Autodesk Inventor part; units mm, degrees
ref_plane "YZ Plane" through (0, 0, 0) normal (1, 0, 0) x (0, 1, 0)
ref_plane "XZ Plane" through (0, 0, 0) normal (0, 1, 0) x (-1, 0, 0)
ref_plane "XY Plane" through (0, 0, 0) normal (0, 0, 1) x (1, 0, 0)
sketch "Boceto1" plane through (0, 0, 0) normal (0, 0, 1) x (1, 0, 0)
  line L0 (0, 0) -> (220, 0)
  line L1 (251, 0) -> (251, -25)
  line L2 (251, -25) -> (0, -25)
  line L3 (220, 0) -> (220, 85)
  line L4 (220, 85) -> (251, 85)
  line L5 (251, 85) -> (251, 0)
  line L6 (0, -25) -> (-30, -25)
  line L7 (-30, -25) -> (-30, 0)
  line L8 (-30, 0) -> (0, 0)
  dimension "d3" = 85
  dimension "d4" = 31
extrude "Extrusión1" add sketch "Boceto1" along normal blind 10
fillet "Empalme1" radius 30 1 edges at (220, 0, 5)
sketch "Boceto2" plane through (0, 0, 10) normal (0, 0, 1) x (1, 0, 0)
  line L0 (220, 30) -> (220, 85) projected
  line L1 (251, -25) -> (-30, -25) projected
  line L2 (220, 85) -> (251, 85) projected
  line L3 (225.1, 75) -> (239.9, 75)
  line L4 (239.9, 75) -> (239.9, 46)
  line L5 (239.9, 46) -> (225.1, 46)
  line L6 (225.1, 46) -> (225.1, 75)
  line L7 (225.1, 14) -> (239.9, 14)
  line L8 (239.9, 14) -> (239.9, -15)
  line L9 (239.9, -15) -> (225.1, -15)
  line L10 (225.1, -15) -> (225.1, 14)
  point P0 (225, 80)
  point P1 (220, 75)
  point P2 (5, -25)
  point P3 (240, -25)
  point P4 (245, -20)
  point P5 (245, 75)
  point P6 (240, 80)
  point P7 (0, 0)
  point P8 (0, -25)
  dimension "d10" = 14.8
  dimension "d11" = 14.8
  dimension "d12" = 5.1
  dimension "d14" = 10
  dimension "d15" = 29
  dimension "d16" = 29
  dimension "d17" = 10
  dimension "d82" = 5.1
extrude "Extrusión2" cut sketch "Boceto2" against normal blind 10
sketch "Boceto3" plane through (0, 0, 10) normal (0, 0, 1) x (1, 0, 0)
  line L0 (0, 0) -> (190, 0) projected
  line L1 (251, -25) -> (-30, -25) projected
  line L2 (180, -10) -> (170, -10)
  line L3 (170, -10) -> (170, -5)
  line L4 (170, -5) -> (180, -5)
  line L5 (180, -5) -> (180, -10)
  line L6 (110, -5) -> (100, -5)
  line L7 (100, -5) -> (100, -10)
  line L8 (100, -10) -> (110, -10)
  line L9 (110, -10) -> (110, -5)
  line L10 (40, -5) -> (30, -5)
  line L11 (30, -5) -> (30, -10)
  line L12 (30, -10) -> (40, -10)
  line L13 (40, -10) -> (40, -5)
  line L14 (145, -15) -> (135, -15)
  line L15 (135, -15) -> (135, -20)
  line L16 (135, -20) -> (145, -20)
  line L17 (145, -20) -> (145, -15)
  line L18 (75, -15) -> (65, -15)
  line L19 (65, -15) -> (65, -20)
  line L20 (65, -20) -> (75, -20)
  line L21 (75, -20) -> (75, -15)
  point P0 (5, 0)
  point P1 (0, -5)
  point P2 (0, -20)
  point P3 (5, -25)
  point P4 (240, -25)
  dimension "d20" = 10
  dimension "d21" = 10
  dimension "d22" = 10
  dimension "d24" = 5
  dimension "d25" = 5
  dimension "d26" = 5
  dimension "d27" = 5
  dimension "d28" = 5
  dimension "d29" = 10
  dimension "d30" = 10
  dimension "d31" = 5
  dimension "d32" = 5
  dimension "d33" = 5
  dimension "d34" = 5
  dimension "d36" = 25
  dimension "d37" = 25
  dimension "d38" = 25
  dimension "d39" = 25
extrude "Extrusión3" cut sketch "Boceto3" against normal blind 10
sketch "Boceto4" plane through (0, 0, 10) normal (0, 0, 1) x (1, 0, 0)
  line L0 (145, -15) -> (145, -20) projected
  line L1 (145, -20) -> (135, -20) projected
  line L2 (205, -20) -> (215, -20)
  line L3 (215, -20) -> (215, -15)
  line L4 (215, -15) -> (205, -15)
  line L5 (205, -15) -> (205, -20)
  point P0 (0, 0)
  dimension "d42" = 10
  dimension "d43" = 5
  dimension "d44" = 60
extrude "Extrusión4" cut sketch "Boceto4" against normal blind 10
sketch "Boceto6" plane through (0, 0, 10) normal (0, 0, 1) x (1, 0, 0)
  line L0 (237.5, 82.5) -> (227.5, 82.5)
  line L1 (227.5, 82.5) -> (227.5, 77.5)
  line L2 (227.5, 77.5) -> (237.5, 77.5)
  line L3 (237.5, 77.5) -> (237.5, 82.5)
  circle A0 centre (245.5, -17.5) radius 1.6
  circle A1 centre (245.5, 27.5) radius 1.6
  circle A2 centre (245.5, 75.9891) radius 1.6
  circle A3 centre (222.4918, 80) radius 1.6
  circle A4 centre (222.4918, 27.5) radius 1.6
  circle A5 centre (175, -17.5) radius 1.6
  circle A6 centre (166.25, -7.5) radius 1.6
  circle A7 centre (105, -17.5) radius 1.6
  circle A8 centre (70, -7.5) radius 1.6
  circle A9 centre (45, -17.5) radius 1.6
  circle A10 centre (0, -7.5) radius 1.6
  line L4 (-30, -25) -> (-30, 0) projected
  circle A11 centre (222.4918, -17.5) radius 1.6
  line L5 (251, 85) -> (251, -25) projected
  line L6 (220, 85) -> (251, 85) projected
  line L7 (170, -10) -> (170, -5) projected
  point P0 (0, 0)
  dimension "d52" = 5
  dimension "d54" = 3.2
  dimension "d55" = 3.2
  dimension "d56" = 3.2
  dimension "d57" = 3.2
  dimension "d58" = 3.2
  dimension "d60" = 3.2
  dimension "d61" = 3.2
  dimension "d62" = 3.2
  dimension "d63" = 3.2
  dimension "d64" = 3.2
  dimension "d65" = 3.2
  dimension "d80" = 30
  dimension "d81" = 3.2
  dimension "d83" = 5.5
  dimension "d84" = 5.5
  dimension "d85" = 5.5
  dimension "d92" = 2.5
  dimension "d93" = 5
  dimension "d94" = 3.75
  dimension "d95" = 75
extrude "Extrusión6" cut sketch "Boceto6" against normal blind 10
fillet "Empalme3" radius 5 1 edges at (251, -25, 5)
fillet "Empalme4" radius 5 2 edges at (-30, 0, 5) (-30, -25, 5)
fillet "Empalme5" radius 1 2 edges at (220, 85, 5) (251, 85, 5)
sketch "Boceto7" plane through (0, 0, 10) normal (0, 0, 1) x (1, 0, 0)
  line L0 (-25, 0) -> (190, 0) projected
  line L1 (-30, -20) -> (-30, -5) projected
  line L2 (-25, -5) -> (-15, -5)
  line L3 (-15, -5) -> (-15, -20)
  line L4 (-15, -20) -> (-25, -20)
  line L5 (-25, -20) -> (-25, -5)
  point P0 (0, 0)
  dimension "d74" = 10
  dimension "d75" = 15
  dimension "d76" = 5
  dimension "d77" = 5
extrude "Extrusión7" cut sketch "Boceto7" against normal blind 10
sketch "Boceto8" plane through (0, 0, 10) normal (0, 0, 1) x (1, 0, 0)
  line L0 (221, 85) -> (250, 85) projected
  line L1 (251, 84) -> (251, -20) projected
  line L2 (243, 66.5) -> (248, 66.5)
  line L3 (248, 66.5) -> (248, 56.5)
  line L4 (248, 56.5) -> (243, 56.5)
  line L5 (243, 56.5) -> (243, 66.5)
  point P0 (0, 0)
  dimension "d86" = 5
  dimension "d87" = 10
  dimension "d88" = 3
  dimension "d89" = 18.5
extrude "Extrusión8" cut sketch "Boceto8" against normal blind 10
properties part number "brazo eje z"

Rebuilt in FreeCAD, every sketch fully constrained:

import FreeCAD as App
import Part
import Sketcher
from FreeCAD import Vector
Q = App.Units.Quantity


def edges_at(feature, points):
    """Names of the edges that pass closest to the given points."""
    edges = feature.Shape.Edges
    near = lambda p: min(range(len(edges)), key=lambda i: edges[i].distToShape(Part.Vertex(*p))[0])
    return sorted({f"Edge{near(p) + 1}" for p in points})

doc = App.newDocument("Part")
body = doc.addObject("PartDesign::Body", "Body")

# Sketch on XY plane
sketch1 = body.newObject("Sketcher::SketchObject", "Sketch")
sketch1.AttachmentSupport = (doc.getObject("XY_Plane"), [""])
sketch1.MapMode = "FlatFace"
sketch1.addGeometry([
    Part.LineSegment(Vector(220, 0, 0), Vector(-30, 0, 0)),  # 0
    Part.LineSegment(Vector(-30, 0, 0), Vector(-30, -25, 0)),  # 1
    Part.LineSegment(Vector(-30, -25, 0), Vector(251, -25, 0)),  # 2
    Part.LineSegment(Vector(251, -25, 0), Vector(251, 85, 0)),  # 3
    Part.LineSegment(Vector(251, 85, 0), Vector(220, 85, 0)),  # 4
    Part.LineSegment(Vector(220, 85, 0), Vector(220, 0, 0)),  # 5
], False)
sketch1.addConstraint([
    Sketcher.Constraint("Coincident", 0, 2, 1, 1),
    Sketcher.Constraint("Coincident", 1, 2, 2, 1),
    Sketcher.Constraint("Coincident", 2, 2, 3, 1),
    Sketcher.Constraint("Coincident", 3, 2, 4, 1),
    Sketcher.Constraint("Coincident", 4, 2, 5, 1),
    Sketcher.Constraint("Coincident", 5, 2, 0, 1),
    Sketcher.Constraint("Horizontal", 0),
    Sketcher.Constraint("Vertical", 1),
    Sketcher.Constraint("Horizontal", 2),
    Sketcher.Constraint("Vertical", 3),
    Sketcher.Constraint("Horizontal", 4),
    Sketcher.Constraint("Vertical", 5),
    Sketcher.Constraint("PointOnObject", 0, 2, -1),
    Sketcher.Constraint("DistanceX", 4, 2, 4, 1, Q("31 mm")),
    Sketcher.Constraint("DistanceY", 5, 2, 5, 1, Q("85 mm")),
    Sketcher.Constraint("DistanceX", 0, 2, 0, 1, Q("250 mm")),
    Sketcher.Constraint("DistanceY", 1, 2, 1, 1, Q("25 mm")),
    Sketcher.Constraint("DistanceX", 0, 2, -1, 1, Q("30 mm")),
])
pad1 = body.newObject("PartDesign::Pad", "Pad")
pad1.Profile = sketch1
pad1.Length = 10
doc.recompute()

fillet = body.newObject("PartDesign::Fillet", "Fillet")
fillet.Base = (pad1, edges_at(pad1, [(220, 0, 5)]))
fillet.Radius = 30

# Sketch on XY plane
sketch2 = body.newObject("Sketcher::SketchObject", "Sketch001")
sketch2.AttachmentSupport = (doc.getObject("XY_Plane"), [""])
sketch2.MapMode = "FlatFace"
sketch2.AttachmentOffset = App.Placement(Vector(0, 0, 10), App.Rotation())
sketch2.addGeometry([
    Part.LineSegment(Vector(240, 75, 0), Vector(225, 75, 0)),  # 0
    Part.LineSegment(Vector(225, 75, 0), Vector(225, 46, 0)),  # 1
    Part.LineSegment(Vector(225, 46, 0), Vector(240, 46, 0)),  # 2
    Part.LineSegment(Vector(240, 46, 0), Vector(240, 75, 0)),  # 3
    Part.LineSegment(Vector(240, 14, 0), Vector(225, 14, 0)),  # 4
    Part.LineSegment(Vector(225, 14, 0), Vector(225, -15, 0)),  # 5
    Part.LineSegment(Vector(225, -15, 0), Vector(240, -15, 0)),  # 6
    Part.LineSegment(Vector(240, -15, 0), Vector(240, 14, 0)),  # 7
], False)
sketch2.addConstraint([
    Sketcher.Constraint("Coincident", 0, 2, 1, 1),
    Sketcher.Constraint("Coincident", 1, 2, 2, 1),
    Sketcher.Constraint("Coincident", 2, 2, 3, 1),
    Sketcher.Constraint("Coincident", 3, 2, 0, 1),
    Sketcher.Constraint("Coincident", 4, 2, 5, 1),
    Sketcher.Constraint("Coincident", 5, 2, 6, 1),
    Sketcher.Constraint("Coincident", 6, 2, 7, 1),
    Sketcher.Constraint("Coincident", 7, 2, 4, 1),
    Sketcher.Constraint("Horizontal", 0),
    Sketcher.Constraint("Vertical", 1),
    Sketcher.Constraint("Horizontal", 2),
    Sketcher.Constraint("Vertical", 3),
    Sketcher.Constraint("Horizontal", 4),
    Sketcher.Constraint("Vertical", 5),
    Sketcher.Constraint("Horizontal", 6),
    Sketcher.Constraint("Vertical", 7),
    Sketcher.Constraint("Vertical", 1, 2, 4, 2),
    Sketcher.Constraint("Vertical", 3, 2, 6, 2),
    Sketcher.Constraint("Equal", 3, 5),
    Sketcher.Constraint("DistanceY", 1, 2, 1, 1, Q("29 mm")),
    Sketcher.Constraint("DistanceX", 0, 2, 0, 1, Q("14.8 mm")),
    Sketcher.Constraint("DistanceY", -1, 1, 0, 2, Q("75 mm")),
    Sketcher.Constraint("DistanceY", -1, 1, 4, 2, Q("14 mm")),
    Sketcher.Constraint("DistanceX", -1, 1, 0, 2, Q("225.1 mm")),
])
pocket1 = body.newObject("PartDesign::Pocket", "Pocket")
pocket1.Profile = sketch2
pocket1.Length = 10

# Sketch on XY plane
sketch3 = body.newObject("Sketcher::SketchObject", "Sketch002")
sketch3.AttachmentSupport = (doc.getObject("XY_Plane"), [""])
sketch3.MapMode = "FlatFace"
sketch3.AttachmentOffset = App.Placement(Vector(0, 0, 10), App.Rotation())
sketch3.addGeometry([
    Part.LineSegment(Vector(170, -10, 0), Vector(180, -10, 0)),  # 0
    Part.LineSegment(Vector(180, -10, 0), Vector(180, -5, 0)),  # 1
    Part.LineSegment(Vector(180, -5, 0), Vector(170, -5, 0)),  # 2
    Part.LineSegment(Vector(170, -5, 0), Vector(170, -10, 0)),  # 3
    Part.LineSegment(Vector(110, -10, 0), Vector(110, -5, 0)),  # 4
    Part.LineSegment(Vector(110, -5, 0), Vector(100, -5, 0)),  # 5
    Part.LineSegment(Vector(100, -5, 0), Vector(100, -10, 0)),  # 6
    Part.LineSegment(Vector(100, -10, 0), Vector(110, -10, 0)),  # 7
    Part.LineSegment(Vector(40, -10, 0), Vector(40, -5, 0)),  # 8
    Part.LineSegment(Vector(40, -5, 0), Vector(30, -5, 0)),  # 9
    Part.LineSegment(Vector(30, -5, 0), Vector(30, -10, 0)),  # 10
    Part.LineSegment(Vector(30, -10, 0), Vector(40, -10, 0)),  # 11
    Part.LineSegment(Vector(145, -20, 0), Vector(145, -15, 0)),  # 12
    Part.LineSegment(Vector(145, -15, 0), Vector(135, -15, 0)),  # 13
    Part.LineSegment(Vector(135, -15, 0), Vector(135, -20, 0)),  # 14
    Part.LineSegment(Vector(135, -20, 0), Vector(145, -20, 0)),  # 15
    Part.LineSegment(Vector(75, -20, 0), Vector(75, -15, 0)),  # 16
    Part.LineSegment(Vector(75, -15, 0), Vector(65, -15, 0)),  # 17
    Part.LineSegment(Vector(65, -15, 0), Vector(65, -20, 0)),  # 18
    Part.LineSegment(Vector(65, -20, 0), Vector(75, -20, 0)),  # 19
], False)
sketch3.addConstraint([
    Sketcher.Constraint("Coincident", 0, 2, 1, 1),
    Sketcher.Constraint("Coincident", 1, 2, 2, 1),
    Sketcher.Constraint("Coincident", 2, 2, 3, 1),
    Sketcher.Constraint("Coincident", 3, 2, 0, 1),
    Sketcher.Constraint("Coincident", 4, 2, 5, 1),
    Sketcher.Constraint("Coincident", 5, 2, 6, 1),
    Sketcher.Constraint("Coincident", 6, 2, 7, 1),
    Sketcher.Constraint("Coincident", 7, 2, 4, 1),
    Sketcher.Constraint("Coincident", 8, 2, 9, 1),
    Sketcher.Constraint("Coincident", 9, 2, 10, 1),
    Sketcher.Constraint("Coincident", 10, 2, 11, 1),
    Sketcher.Constraint("Coincident", 11, 2, 8, 1),
    Sketcher.Constraint("Coincident", 12, 2, 13, 1),
    Sketcher.Constraint("Coincident", 13, 2, 14, 1),
    Sketcher.Constraint("Coincident", 14, 2, 15, 1),
    Sketcher.Constraint("Coincident", 15, 2, 12, 1),
    Sketcher.Constraint("Coincident", 16, 2, 17, 1),
    Sketcher.Constraint("Coincident", 17, 2, 18, 1),
    Sketcher.Constraint("Coincident", 18, 2, 19, 1),
    Sketcher.Constraint("Coincident", 19, 2, 16, 1),
    Sketcher.Constraint("Horizontal", 0),
    Sketcher.Constraint("Vertical", 1),
    Sketcher.Constraint("Horizontal", 2),
    Sketcher.Constraint("Vertical", 3),
    Sketcher.Constraint("Vertical", 4),
    Sketcher.Constraint("Horizontal", 5),
    Sketcher.Constraint("Vertical", 6),
    Sketcher.Constraint("Horizontal", 7),
    Sketcher.Constraint("Vertical", 8),
    Sketcher.Constraint("Horizontal", 9),
    Sketcher.Constraint("Vertical", 10),
    Sketcher.Constraint("Horizontal", 11),
    Sketcher.Constraint("Vertical", 12),
    Sketcher.Constraint("Horizontal", 13),
    Sketcher.Constraint("Vertical", 14),
    Sketcher.Constraint("Horizontal", 15),
    Sketcher.Constraint("Vertical", 16),
    Sketcher.Constraint("Horizontal", 17),
    Sketcher.Constraint("Vertical", 18),
    Sketcher.Constraint("Horizontal", 19),
    Sketcher.Constraint("Horizontal", 2, 2, 4, 2),
    Sketcher.Constraint("Horizontal", 3, 2, 6, 2),
    Sketcher.Constraint("Horizontal", 5, 2, 8, 2),
    Sketcher.Constraint("Horizontal", 7, 2, 10, 2),
    Sketcher.Constraint("Horizontal", 13, 2, 16, 2),
    Sketcher.Constraint("Horizontal", 15, 2, 18, 2),
    Sketcher.Constraint("Equal", 2, 5),
    Sketcher.Constraint("Equal", 7, 9),
    Sketcher.Constraint("Equal", 11, 13),
    Sketcher.Constraint("Equal", 15, 17),
    Sketcher.Constraint("Equal", 10, 12),
    Sketcher.Constraint("DistanceX", 0, 1, 0, 2, Q("10 mm")),
    Sketcher.Constraint("DistanceY", 1, 1, 1, 2, Q("5 mm")),
    Sketcher.Constraint("DistanceY", 0, 2, -1, 1, Q("10 mm")),
    Sketcher.Constraint("DistanceX", 12, 2, 3, 2, Q("25 mm")),
    Sketcher.Constraint("DistanceY", 12, 2, 3, 2, Q("5 mm")),
    Sketcher.Constraint("DistanceX", 7, 2, 13, 2, Q("25 mm")),
    Sketcher.Constraint("DistanceX", 16, 2, 6, 2, Q("25 mm")),
    Sketcher.Constraint("DistanceX", 11, 2, 17, 2, Q("25 mm")),
    Sketcher.Constraint("DistanceX", -1, 1, 0, 2, Q("180 mm")),
])
pocket2 = body.newObject("PartDesign::Pocket", "Pocket001")
pocket2.Profile = sketch3
pocket2.Length = 10

# Sketch on XY plane
sketch4 = body.newObject("Sketcher::SketchObject", "Sketch003")
sketch4.AttachmentSupport = (doc.getObject("XY_Plane"), [""])
sketch4.MapMode = "FlatFace"
sketch4.AttachmentOffset = App.Placement(Vector(0, 0, 10), App.Rotation())
sketch4.addGeometry([
    Part.LineSegment(Vector(205, -15, 0), Vector(205, -20, 0)),
    Part.LineSegment(Vector(205, -20, 0), Vector(215, -20, 0)),
    Part.LineSegment(Vector(215, -20, 0), Vector(215, -15, 0)),
    Part.LineSegment(Vector(215, -15, 0), Vector(205, -15, 0)),
], False)
sketch4.addConstraint([
    Sketcher.Constraint("Coincident", 0, 2, 1, 1),
    Sketcher.Constraint("Coincident", 1, 2, 2, 1),
    Sketcher.Constraint("Coincident", 2, 2, 3, 1),
    Sketcher.Constraint("Coincident", 3, 2, 0, 1),
    Sketcher.Constraint("Vertical", 0),
    Sketcher.Constraint("Horizontal", 1),
    Sketcher.Constraint("Vertical", 2),
    Sketcher.Constraint("Horizontal", 3),
    Sketcher.Constraint("DistanceX", 1, 1, 1, 2, Q("10 mm")),
    Sketcher.Constraint("DistanceY", 0, 2, 0, 1, Q("5 mm")),
    Sketcher.Constraint("DistanceX", -1, 1, 0, 2, Q("205 mm")),
    Sketcher.Constraint("DistanceY", 0, 2, -1, 1, Q("20 mm")),
])
pocket3 = body.newObject("PartDesign::Pocket", "Pocket002")
pocket3.Profile = sketch4
pocket3.Length = 10

# Sketch on XY plane
sketch5 = body.newObject("Sketcher::SketchObject", "Sketch004")
sketch5.AttachmentSupport = (doc.getObject("XY_Plane"), [""])
sketch5.MapMode = "FlatFace"
sketch5.AttachmentOffset = App.Placement(Vector(0, 0, 10), App.Rotation())
sketch5.addGeometry([
    Part.LineSegment(Vector(237.5, 77.5, 0), Vector(237.5, 82.5, 0)),  # 0
    Part.LineSegment(Vector(237.5, 82.5, 0), Vector(227.5, 82.5, 0)),  # 1
    Part.LineSegment(Vector(227.5, 82.5, 0), Vector(227.5, 77.5, 0)),  # 2
    Part.LineSegment(Vector(227.5, 77.5, 0), Vector(237.5, 77.5, 0)),  # 3
    Part.Circle(Vector(245.5, -17.5, 0), Vector(0, 0, 1), 1.6),  # 4
    Part.Circle(Vector(245.5, 27.5, 0), Vector(0, 0, 1), 1.6),  # 5
    Part.Circle(Vector(245.5, 76, 0), Vector(0, 0, 1), 1.6),  # 6
    Part.Circle(Vector(222.5, 80, 0), Vector(0, 0, 1), 1.6),  # 7
    Part.Circle(Vector(222.5, 27.5, 0), Vector(0, 0, 1), 1.6),  # 8
    Part.Circle(Vector(175, -17.5, 0), Vector(0, 0, 1), 1.6),  # 9
    Part.Circle(Vector(166.2, -7.5, 0), Vector(0, 0, 1), 1.6),  # 10
    Part.Circle(Vector(105, -17.5, 0), Vector(0, 0, 1), 1.6),  # 11
    Part.Circle(Vector(70, -7.5, 0), Vector(0, 0, 1), 1.6),  # 12
    Part.Circle(Vector(45, -17.5, 0), Vector(0, 0, 1), 1.6),  # 13
    Part.Circle(Vector(0, -7.5, 0), Vector(0, 0, 1), 1.6),  # 14
    Part.Circle(Vector(222.5, -17.5, 0), Vector(0, 0, 1), 1.6),  # 15
], False)
sketch5.addConstraint([
    Sketcher.Constraint("Coincident", 0, 2, 1, 1),
    Sketcher.Constraint("Coincident", 1, 2, 2, 1),
    Sketcher.Constraint("Coincident", 2, 2, 3, 1),
    Sketcher.Constraint("Coincident", 3, 2, 0, 1),
    Sketcher.Constraint("Vertical", 0),
    Sketcher.Constraint("Horizontal", 1),
    Sketcher.Constraint("Vertical", 2),
    Sketcher.Constraint("Horizontal", 3),
    Sketcher.Constraint("Equal", 4, 5),
    Sketcher.Constraint("Equal", 5, 6),
    Sketcher.Constraint("Equal", 6, 7),
    Sketcher.Constraint("Equal", 7, 8),
    Sketcher.Constraint("Equal", 8, 9),
    Sketcher.Constraint("Equal", 9, 10),
    Sketcher.Constraint("Equal", 10, 11),
    Sketcher.Constraint("Equal", 11, 12),
    Sketcher.Constraint("Equal", 12, 13),
    Sketcher.Constraint("Equal", 13, 14),
    Sketcher.Constraint("Equal", 14, 15),
    Sketcher.Constraint("PointOnObject", 14, 3, -2),
    Sketcher.Constraint("Horizontal", 5, 3, 8, 3),
    Sketcher.Constraint("Horizontal", 4, 3, 9, 3),
    Sketcher.Constraint("Horizontal", 9, 3, 11, 3),
    Sketcher.Constraint("Horizontal", 10, 3, 12, 3),
    Sketcher.Constraint("Horizontal", 11, 3, 13, 3),
    Sketcher.Constraint("Horizontal", 12, 3, 14, 3),
    Sketcher.Constraint("Horizontal", 13, 3, 15, 3),
    Sketcher.Constraint("Vertical", 4, 3, 5, 3),
    Sketcher.Constraint("Vertical", 5, 3, 6, 3),
    Sketcher.Constraint("Vertical", 7, 3, 8, 3),
    Sketcher.Constraint("Vertical", 8, 3, 15, 3),
    Sketcher.Constraint("Diameter", 4, Q("3.2 mm")),
    Sketcher.Constraint("DistanceY", 0, 1, 0, 2, Q("5 mm")),
    Sketcher.Constraint("DistanceY", 7, 3, 0, 2, Q("2.5 mm")),
    Sketcher.Constraint("DistanceX", 1, 2, 1, 1, Q("10 mm")),
    Sketcher.Constraint("DistanceY", -1, 1, 7, 3, Q("80 mm")),
    Sketcher.Constraint("DistanceX", -1, 1, 9, 3, Q("175 mm")),
    Sketcher.Constraint("DistanceX", -1, 1, 11, 3, Q("105 mm")),
    Sketcher.Constraint("DistanceX", -1, 1, 12, 3, Q("70 mm")),
    Sketcher.Constraint("DistanceX", -1, 1, 13, 3, Q("45 mm")),
    Sketcher.Constraint("DistanceY", 4, 3, 5, 3, Q("45 mm")),
    Sketcher.Constraint("DistanceY", 9, 3, 10, 3, Q("10 mm")),
    Sketcher.Constraint("DistanceX", 0, 2, 6, 3, Q("8 mm")),
    Sketcher.Constraint("DistanceY", 5, 3, 0, 2, Q("55 mm")),
    Sketcher.Constraint("DistanceX", -1, 1, 4, 3, Q("245.5 mm")),
    Sketcher.Constraint("DistanceX", -1, 1, 10, 3, Q("166.25 mm")),
    Sketcher.Constraint("DistanceY", -1, 1, 6, 3, Q("75.989 mm")),
    Sketcher.Constraint("DistanceX", -1, 1, 7, 3, Q("222.4918 mm")),
])
pocket4 = body.newObject("PartDesign::Pocket", "Pocket003")
pocket4.Profile = sketch5
pocket4.Length = 10
doc.recompute()

fillet2 = body.newObject("PartDesign::Fillet", "Fillet001")
fillet2.Base = (pocket4, edges_at(pocket4, [(251, -25, 5)]))
fillet2.Radius = 5
doc.recompute()

fillet3 = body.newObject("PartDesign::Fillet", "Fillet002")
fillet3.Base = (fillet2, edges_at(fillet2, [(-30, 0, 5), (-30, -25, 5)]))
fillet3.Radius = 5
doc.recompute()

fillet4 = body.newObject("PartDesign::Fillet", "Fillet003")
fillet4.Base = (fillet3, edges_at(fillet3, [(220, 85, 5), (251, 85, 5)]))
fillet4.Radius = 1

# Sketch on XY plane
sketch6 = body.newObject("Sketcher::SketchObject", "Sketch005")
sketch6.AttachmentSupport = (doc.getObject("XY_Plane"), [""])
sketch6.MapMode = "FlatFace"
sketch6.AttachmentOffset = App.Placement(Vector(0, 0, 10), App.Rotation())
sketch6.addGeometry([
    Part.LineSegment(Vector(-15, -5, 0), Vector(-25, -5, 0)),
    Part.LineSegment(Vector(-25, -5, 0), Vector(-25, -20, 0)),
    Part.LineSegment(Vector(-25, -20, 0), Vector(-15, -20, 0)),
    Part.LineSegment(Vector(-15, -20, 0), Vector(-15, -5, 0)),
], False)
sketch6.addConstraint([
    Sketcher.Constraint("Coincident", 0, 2, 1, 1),
    Sketcher.Constraint("Coincident", 1, 2, 2, 1),
    Sketcher.Constraint("Coincident", 2, 2, 3, 1),
    Sketcher.Constraint("Coincident", 3, 2, 0, 1),
    Sketcher.Constraint("Horizontal", 0),
    Sketcher.Constraint("Vertical", 1),
    Sketcher.Constraint("Horizontal", 2),
    Sketcher.Constraint("Vertical", 3),
    Sketcher.Constraint("DistanceX", 0, 2, 0, 1, Q("10 mm")),
    Sketcher.Constraint("DistanceY", 1, 2, 1, 1, Q("15 mm")),
    Sketcher.Constraint("DistanceY", 0, 2, -1, 1, Q("5 mm")),
    Sketcher.Constraint("DistanceX", 2, 2, -1, 1, Q("15 mm")),
])
pocket5 = body.newObject("PartDesign::Pocket", "Pocket004")
pocket5.Profile = sketch6
pocket5.Length = 10

# Sketch on XY plane
sketch7 = body.newObject("Sketcher::SketchObject", "Sketch006")
sketch7.AttachmentSupport = (doc.getObject("XY_Plane"), [""])
sketch7.MapMode = "FlatFace"
sketch7.AttachmentOffset = App.Placement(Vector(0, 0, 10), App.Rotation())
sketch7.addGeometry([
    Part.LineSegment(Vector(248, 66, 0), Vector(243, 66, 0)),
    Part.LineSegment(Vector(243, 66, 0), Vector(243, 56, 0)),
    Part.LineSegment(Vector(243, 56, 0), Vector(248, 56, 0)),
    Part.LineSegment(Vector(248, 56, 0), Vector(248, 66, 0)),
], False)
sketch7.addConstraint([
    Sketcher.Constraint("Coincident", 0, 2, 1, 1),
    Sketcher.Constraint("Coincident", 1, 2, 2, 1),
    Sketcher.Constraint("Coincident", 2, 2, 3, 1),
    Sketcher.Constraint("Coincident", 3, 2, 0, 1),
    Sketcher.Constraint("Horizontal", 0),
    Sketcher.Constraint("Vertical", 1),
    Sketcher.Constraint("Horizontal", 2),
    Sketcher.Constraint("Vertical", 3),
    Sketcher.Constraint("DistanceX", 0, 2, 0, 1, Q("5 mm")),
    Sketcher.Constraint("DistanceY", 1, 2, 1, 1, Q("10 mm")),
    Sketcher.Constraint("DistanceX", -1, 1, 0, 2, Q("243 mm")),
    Sketcher.Constraint("DistanceY", -1, 1, 0, 2, Q("66.5 mm")),
])
pocket6 = body.newObject("PartDesign::Pocket", "Pocket005")
pocket6.Profile = sketch7
pocket6.Length = 10

doc.recompute()
